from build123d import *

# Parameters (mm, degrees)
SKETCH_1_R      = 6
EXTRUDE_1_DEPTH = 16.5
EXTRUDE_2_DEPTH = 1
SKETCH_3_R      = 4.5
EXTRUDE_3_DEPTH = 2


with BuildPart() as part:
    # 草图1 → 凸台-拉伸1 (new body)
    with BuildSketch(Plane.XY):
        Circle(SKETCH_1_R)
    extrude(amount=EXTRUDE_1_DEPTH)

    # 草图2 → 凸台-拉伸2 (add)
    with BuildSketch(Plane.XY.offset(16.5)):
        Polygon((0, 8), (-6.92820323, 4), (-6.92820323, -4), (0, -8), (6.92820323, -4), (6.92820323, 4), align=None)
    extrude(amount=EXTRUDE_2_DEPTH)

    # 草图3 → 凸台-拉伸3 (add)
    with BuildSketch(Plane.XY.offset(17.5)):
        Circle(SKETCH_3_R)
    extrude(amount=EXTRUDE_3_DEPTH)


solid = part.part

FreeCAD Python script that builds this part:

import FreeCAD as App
import Part
import Sketcher
from FreeCAD import Vector
Q = App.Units.Quantity

doc = App.newDocument("Part")
params = doc.addObject("Spreadsheet::Sheet", "Params")
for row, (alias, value) in enumerate([
    ("sketch1_diameter", "12 mm"),
    ("pad1_length", "16.5 mm"),
    ("sketch2_height", "8 mm"),
    ("sketch2_length", "8 mm"),
    ("pad2_length", "1 mm"),
    ("sketch3_diameter", "9 mm"),
    ("pad3_length", "2 mm"),
], start=1):
    params.set(f"A{row}", alias)
    params.set(f"B{row}", "=" + value)
    params.setAlias(f"B{row}", alias)

body = doc.addObject("PartDesign::Body", "Body")

# Sketch on XY plane
sketch1 = body.newObject("Sketcher::SketchObject", "Sketch")
sketch1.AttachmentSupport = (doc.getObject("XY_Plane"), [""])
sketch1.MapMode = "FlatFace"
sketch1.addGeometry(Part.Circle(Vector(0, 0, 0), Vector(0, 0, 1), 6), False)
sketch1.addConstraint([
    Sketcher.Constraint("Coincident", 0, 3, -1, 1),
    Sketcher.Constraint("Diameter", 0, Q("12 mm")),
])
sketch1.setExpression("Constraints[1]", "Params.sketch1_diameter")
pad1 = body.newObject("PartDesign::Pad", "Pad")
pad1.Profile = sketch1
pad1.setExpression("Length", "Params.pad1_length")

# Sketch on XY plane
sketch2 = body.newObject("Sketcher::SketchObject", "Sketch001")
sketch2.AttachmentSupport = (doc.getObject("XY_Plane"), [""])
sketch2.MapMode = "FlatFace"
sketch2.AttachmentOffset = App.Placement(Vector(0, 0, 16.5), App.Rotation())
sketch2.addGeometry([
    Part.LineSegment(Vector(0, 8, 0), Vector(-6.928203, 4, 0)),  # 0
    Part.LineSegment(Vector(-6.928203, 4, 0), Vector(-6.928203, -4, 0)),  # 1
    Part.LineSegment(Vector(-6.928203, -4, 0), Vector(0, -8, 0)),  # 2
    Part.LineSegment(Vector(0, -8, 0), Vector(6.928203, -4, 0)),  # 3
    Part.LineSegment(Vector(6.928203, -4, 0), Vector(6.928203, 4, 0)),  # 4
    Part.LineSegment(Vector(6.928203, 4, 0), Vector(0, 8, 0)),  # 5
], False)
sketch2.addConstraint([
    Sketcher.Constraint("Coincident", 0, 2, 1, 1),
    Sketcher.Constraint("Coincident", 1, 2, 2, 1),
    Sketcher.Constraint("Coincident", 2, 2, 3, 1),
    Sketcher.Constraint("Coincident", 3, 2, 4, 1),
    Sketcher.Constraint("Coincident", 4, 2, 5, 1),
    Sketcher.Constraint("Coincident", 5, 2, 0, 1),
    Sketcher.Constraint("Vertical", 1),
    Sketcher.Constraint("Vertical", 4),
    Sketcher.Constraint("Symmetric", 0, 2, 3, 2, -1, 1),
    Sketcher.Constraint("Symmetric", 2, 2, 5, 2, -1, 1),
    Sketcher.Constraint("PointOnObject", 2, 2, -2),
    Sketcher.Constraint("Parallel", 2, 5),
    Sketcher.Constraint("Horizontal", 1, 2, 3, 2),
    Sketcher.Constraint("DistanceY", 1, 2, 1, 1, Q("8 mm")),
    Sketcher.Constraint("Angle", 0, Q("-150 deg")),
    Sketcher.Constraint("Distance", 0, Q("8 mm")),
])
sketch2.setExpression("Constraints[13]", "Params.sketch2_height")
sketch2.setExpression("Constraints[15]", "Params.sketch2_length")
pad2 = body.newObject("PartDesign::Pad", "Pad001")
pad2.Profile = sketch2
pad2.setExpression("Length", "Params.pad2_length")

# Sketch on XY plane
sketch3 = body.newObject("Sketcher::SketchObject", "Sketch002")
sketch3.AttachmentSupport = (doc.getObject("XY_Plane"), [""])
sketch3.MapMode = "FlatFace"
sketch3.AttachmentOffset = App.Placement(Vector(0, 0, 17.5), App.Rotation())
sketch3.addGeometry(Part.Circle(Vector(0, 0, 0), Vector(0, 0, 1), 4.5), False)
sketch3.addConstraint([
    Sketcher.Constraint("Coincident", 0, 3, -1, 1),
    Sketcher.Constraint("Diameter", 0, Q("9 mm")),
])
sketch3.setExpression("Constraints[1]", "Params.sketch3_diameter")
pad3 = body.newObject("PartDesign::Pad", "Pad002")
pad3.Profile = sketch3
pad3.setExpression("Length", "Params.pad3_length")

doc.recompute()
